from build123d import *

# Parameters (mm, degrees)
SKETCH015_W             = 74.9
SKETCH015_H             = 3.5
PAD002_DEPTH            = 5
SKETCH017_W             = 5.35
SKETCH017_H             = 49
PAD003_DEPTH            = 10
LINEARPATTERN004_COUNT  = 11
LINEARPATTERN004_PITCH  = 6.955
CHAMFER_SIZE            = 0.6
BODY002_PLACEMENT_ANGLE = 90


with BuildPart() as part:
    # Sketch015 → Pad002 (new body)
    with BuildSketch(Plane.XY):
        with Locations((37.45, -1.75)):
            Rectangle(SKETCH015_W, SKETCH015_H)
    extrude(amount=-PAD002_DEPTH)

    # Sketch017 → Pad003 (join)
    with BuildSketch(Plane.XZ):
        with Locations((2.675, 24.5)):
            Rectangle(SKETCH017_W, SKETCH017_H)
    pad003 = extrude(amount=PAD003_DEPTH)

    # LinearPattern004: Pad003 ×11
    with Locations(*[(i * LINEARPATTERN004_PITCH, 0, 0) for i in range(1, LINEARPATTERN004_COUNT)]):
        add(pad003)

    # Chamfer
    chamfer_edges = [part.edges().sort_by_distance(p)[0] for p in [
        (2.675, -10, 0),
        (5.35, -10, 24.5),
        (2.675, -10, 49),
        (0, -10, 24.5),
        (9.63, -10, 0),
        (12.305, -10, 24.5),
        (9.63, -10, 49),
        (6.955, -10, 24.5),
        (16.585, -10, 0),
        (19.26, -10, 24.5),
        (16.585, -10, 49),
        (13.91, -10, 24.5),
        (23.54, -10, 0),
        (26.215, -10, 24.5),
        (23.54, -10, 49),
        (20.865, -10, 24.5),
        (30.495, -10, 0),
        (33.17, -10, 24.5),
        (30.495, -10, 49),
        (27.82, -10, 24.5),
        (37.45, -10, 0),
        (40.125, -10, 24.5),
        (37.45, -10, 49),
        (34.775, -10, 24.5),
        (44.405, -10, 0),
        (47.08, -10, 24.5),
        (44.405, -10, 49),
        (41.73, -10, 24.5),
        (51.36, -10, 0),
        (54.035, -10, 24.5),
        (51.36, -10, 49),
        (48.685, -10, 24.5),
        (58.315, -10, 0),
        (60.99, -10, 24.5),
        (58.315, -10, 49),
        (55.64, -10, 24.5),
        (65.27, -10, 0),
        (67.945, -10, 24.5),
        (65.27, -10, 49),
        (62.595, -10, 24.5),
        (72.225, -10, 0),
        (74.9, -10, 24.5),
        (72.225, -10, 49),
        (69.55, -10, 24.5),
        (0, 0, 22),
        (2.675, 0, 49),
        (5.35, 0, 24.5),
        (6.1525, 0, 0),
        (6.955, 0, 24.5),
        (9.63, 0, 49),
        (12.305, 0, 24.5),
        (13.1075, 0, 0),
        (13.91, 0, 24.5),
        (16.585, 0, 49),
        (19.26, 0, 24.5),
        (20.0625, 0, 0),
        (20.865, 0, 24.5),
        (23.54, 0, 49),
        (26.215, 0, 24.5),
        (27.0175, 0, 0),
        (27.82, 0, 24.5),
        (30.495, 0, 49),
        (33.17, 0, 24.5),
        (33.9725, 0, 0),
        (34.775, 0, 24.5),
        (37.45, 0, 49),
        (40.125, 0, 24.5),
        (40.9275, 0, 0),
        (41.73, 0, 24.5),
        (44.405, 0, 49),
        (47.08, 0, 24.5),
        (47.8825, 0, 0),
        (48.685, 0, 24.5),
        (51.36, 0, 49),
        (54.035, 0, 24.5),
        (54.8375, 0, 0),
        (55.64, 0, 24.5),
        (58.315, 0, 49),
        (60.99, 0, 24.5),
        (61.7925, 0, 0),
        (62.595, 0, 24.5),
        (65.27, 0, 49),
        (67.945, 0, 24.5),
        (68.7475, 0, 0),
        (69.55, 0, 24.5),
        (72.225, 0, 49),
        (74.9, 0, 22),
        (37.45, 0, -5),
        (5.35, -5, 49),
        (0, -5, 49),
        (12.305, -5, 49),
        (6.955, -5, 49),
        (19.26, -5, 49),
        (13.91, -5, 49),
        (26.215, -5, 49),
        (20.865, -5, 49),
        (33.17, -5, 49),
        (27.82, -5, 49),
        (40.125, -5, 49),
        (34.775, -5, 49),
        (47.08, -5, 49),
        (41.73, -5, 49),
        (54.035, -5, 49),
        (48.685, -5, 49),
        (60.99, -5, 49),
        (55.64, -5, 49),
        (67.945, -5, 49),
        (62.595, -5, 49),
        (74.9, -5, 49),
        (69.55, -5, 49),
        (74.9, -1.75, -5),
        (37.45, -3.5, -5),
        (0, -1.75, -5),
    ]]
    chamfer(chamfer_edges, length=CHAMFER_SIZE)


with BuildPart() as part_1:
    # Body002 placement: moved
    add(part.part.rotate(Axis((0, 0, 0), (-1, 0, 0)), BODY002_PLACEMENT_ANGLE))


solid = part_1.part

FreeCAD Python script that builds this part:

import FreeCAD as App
import Part
import Sketcher
Q = App.Units.Quantity


def edges_at(feature, points):
    """Names of the edges that pass closest to the given points."""
    edges = feature.Shape.Edges
    near = lambda p: min(range(len(edges)), key=lambda i: edges[i].distToShape(Part.Vertex(*p))[0])
    return sorted({f"Edge{near(p) + 1}" for p in points})


def add_polygon(sketch, points):
    """Adds a closed chain of lines whose ends are joined by coincident constraints."""
    first, n = sketch.GeometryCount, len(points)
    for a, b in zip(points, points[1:] + points[:1]):
        sketch.addGeometry(Part.LineSegment(App.Vector(*a, 0), App.Vector(*b, 0)), False)
    for i in range(n):
        sketch.addConstraint(Sketcher.Constraint("Coincident", first + i, 2, first + (i + 1) % n, 1))

doc = App.newDocument("Part")
body = doc.addObject("PartDesign::Body", "Body")

# Sketch on XY plane
sketch1 = doc.addObject("Sketcher::SketchObject", "Sketch")
body.addObject(sketch1)
sketch1.AttachmentSupport = (doc.XY_Plane, [""])
sketch1.MapMode = "FlatFace"
add_polygon(sketch1, [(0, 0), (0, -3.5), (74.9, -3.5), (74.9, 0)])  # lines 0-3
sketch1.addConstraint(Sketcher.Constraint("Vertical", 0))
sketch1.addConstraint(Sketcher.Constraint("Horizontal", 1))
sketch1.addConstraint(Sketcher.Constraint("Vertical", 2))
sketch1.addConstraint(Sketcher.Constraint("Horizontal", 3))
sketch1.addConstraint(Sketcher.Constraint("Coincident", 3, 2, -1, 1))
sketch1.addConstraint(Sketcher.Constraint("DistanceX", 1, 1, 1, 2, Q("74.9 mm")))
sketch1.addConstraint(Sketcher.Constraint("DistanceY", 0, 2, 0, 1, Q("3.5 mm")))
pad1 = doc.addObject("PartDesign::Pad", "Pad")
body.addObject(pad1)
pad1.Profile = sketch1
pad1.Length = 5
pad1.Reversed = True

# Sketch on XZ plane
sketch2 = doc.addObject("Sketcher::SketchObject", "Sketch001")
body.addObject(sketch2)
sketch2.AttachmentSupport = (doc.XZ_Plane, [""])
sketch2.MapMode = "FlatFace"
add_polygon(sketch2, [(0, 49), (0, 0), (5, 0), (5, 49)])  # lines 0-3
sketch2.addConstraint(Sketcher.Constraint("Vertical", 0))
sketch2.addConstraint(Sketcher.Constraint("Horizontal", 1))
sketch2.addConstraint(Sketcher.Constraint("Vertical", 2))
sketch2.addConstraint(Sketcher.Constraint("Horizontal", 3))
sketch2.addConstraint(Sketcher.Constraint("Coincident", 0, 2, -1, 1))
sketch2.addConstraint(Sketcher.Constraint("DistanceY", 0, 2, 0, 1, Q("49 mm")))
sketch2.addConstraint(Sketcher.Constraint("DistanceX", 1, 1, 1, 2, Q("5.35 mm")))
pad2 = doc.addObject("PartDesign::Pad", "Pad001")
body.addObject(pad2)
pad2.Profile = sketch2
pad2.Length = 10
doc.recompute()

linearpattern = doc.addObject("PartDesign::LinearPattern", "LinearPattern")
body.addObject(linearpattern)
linearpattern.Originals = [pad2]
linearpattern.Direction = (doc.X_Axis, [""])
linearpattern.Mode = "offset"
linearpattern.Offset = 6.955
linearpattern.Occurrences = 11
body.Tip = linearpattern
doc.recompute()

chamfer = doc.addObject("PartDesign::Chamfer", "Chamfer")
body.addObject(chamfer)
chamfer.Base = (linearpattern, edges_at(linearpattern, [
    (2.675, -10, 0),
    (5.35, -10, 24.5),
    (2.675, -10, 49),
    (0, -10, 24.5),
    (9.63, -10, 0),
    (12.305, -10, 24.5),
    (9.63, -10, 49),
    (6.955, -10, 24.5),
    (16.585, -10, 0),
    (19.26, -10, 24.5),
    (16.585, -10, 49),
    (13.91, -10, 24.5),
    (23.54, -10, 0),
    (26.215, -10, 24.5),
    (23.54, -10, 49),
    (20.865, -10, 24.5),
    (30.495, -10, 0),
    (33.17, -10, 24.5),
    (30.495, -10, 49),
    (27.82, -10, 24.5),
    (37.45, -10, 0),
    (40.125, -10, 24.5),
    (37.45, -10, 49),
    (34.775, -10, 24.5),
    (44.405, -10, 0),
    (47.08, -10, 24.5),
    (44.405, -10, 49),
    (41.73, -10, 24.5),
    (51.36, -10, 0),
    (54.035, -10, 24.5),
    (51.36, -10, 49),
    (48.685, -10, 24.5),
    (58.315, -10, 0),
    (60.99, -10, 24.5),
    (58.315, -10, 49),
    (55.64, -10, 24.5),
    (65.27, -10, 0),
    (67.945, -10, 24.5),
    (65.27, -10, 49),
    (62.595, -10, 24.5),
    (72.225, -10, 0),
    (74.9, -10, 24.5),
    (72.225, -10, 49),
    (69.55, -10, 24.5),
    (0, 0, 22),
    (2.675, 0, 49),
    (5.35, 0, 24.5),
    (6.152, 0, 0),
    (6.955, 0, 24.5),
    (9.63, 0, 49),
    (12.305, 0, 24.5),
    (13.107, 0, 0),
    (13.91, 0, 24.5),
    (16.585, 0, 49),
    (19.26, 0, 24.5),
    (20.062, 0, 0),
    (20.865, 0, 24.5),
    (23.54, 0, 49),
    (26.215, 0, 24.5),
    (27.017, 0, 0),
    (27.82, 0, 24.5),
    (30.495, 0, 49),
    (33.17, 0, 24.5),
    (33.972, 0, 0),
    (34.775, 0, 24.5),
    (37.45, 0, 49),
    (40.125, 0, 24.5),
    (40.928, 0, 0),
    (41.73, 0, 24.5),
    (44.405, 0, 49),
    (47.08, 0, 24.5),
    (47.883, 0, 0),
    (48.685, 0, 24.5),
    (51.36, 0, 49),
    (54.035, 0, 24.5),
    (54.837, 0, 0),
    (55.64, 0, 24.5),
    (58.315, 0, 49),
    (60.99, 0, 24.5),
    (61.792, 0, 0),
    (62.595, 0, 24.5),
    (65.27, 0, 49),
    (67.945, 0, 24.5),
    (68.748, 0, 0),
    (69.55, 0, 24.5),
    (72.225, 0, 49),
    (74.9, 0, 22),
    (37.45, 0, -5),
    (5.35, -5, 49),
    (0, -5, 49),
    (12.305, -5, 49),
    (6.955, -5, 49),
    (19.26, -5, 49),
    (13.91, -5, 49),
    (26.215, -5, 49),
    (20.865, -5, 49),
    (33.17, -5, 49),
    (27.82, -5, 49),
    (40.125, -5, 49),
    (34.775, -5, 49),
    (47.08, -5, 49),
    (41.73, -5, 49),
    (54.035, -5, 49),
    (48.685, -5, 49),
    (60.99, -5, 49),
    (55.64, -5, 49),
    (67.945, -5, 49),
    (62.595, -5, 49),
    (74.9, -5, 49),
    (69.55, -5, 49),
    (74.9, -1.75, -5),
    (37.45, -3.5, -5),
    (0, -1.75, -5),
]))
chamfer.Size = 0.6
body2 = doc.addObject("PartDesign::Body", "Body001")
doc.recompute()

body.Placement = App.Placement(App.Vector(0, 0, 0), App.Rotation(App.Vector(-1, 0, 0), 90))
boolean = doc.addObject("PartDesign::Boolean", "Boolean")
body2.addObject(boolean)
boolean.Type = "Fuse"
boolean.addObjects([body])

doc.recompute()
